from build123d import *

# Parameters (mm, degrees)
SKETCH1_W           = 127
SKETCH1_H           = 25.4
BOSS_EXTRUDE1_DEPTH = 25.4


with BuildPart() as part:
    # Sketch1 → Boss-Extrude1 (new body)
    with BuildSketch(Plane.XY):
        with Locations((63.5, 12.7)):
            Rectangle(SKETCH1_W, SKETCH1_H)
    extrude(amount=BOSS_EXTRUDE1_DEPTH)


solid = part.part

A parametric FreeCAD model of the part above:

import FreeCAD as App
import Part
import Sketcher
from FreeCAD import Vector
Q = App.Units.Quantity


def add_polygon(sketch, points):
    """Adds a closed chain of lines whose ends are joined by coincident constraints."""
    first, n = sketch.GeometryCount, len(points)
    for a, b in zip(points, points[1:] + points[:1]):
        sketch.addGeometry(Part.LineSegment(App.Vector(*a, 0), App.Vector(*b, 0)), False)
    for i in range(n):
        sketch.addConstraint(Sketcher.Constraint("Coincident", first + i, 2, first + (i + 1) % n, 1))

doc = App.newDocument("Part")
body = doc.addObject("PartDesign::Body", "Body")

sketch1 = body.newObject("Sketcher::SketchObject", "Sketch")
sketch1.AttachmentSupport = (doc.getObject("XY_Plane"), [""])
sketch1.MapMode = "FlatFace"
add_polygon(sketch1, [(0, 25), (0, 0), (127, 0), (127, 25)])
sketch1.addConstraint(Sketcher.Constraint("Vertical", 0))
sketch1.addConstraint(Sketcher.Constraint("Horizontal", 1))
sketch1.addConstraint(Sketcher.Constraint("Vertical", 2))
sketch1.addConstraint(Sketcher.Constraint("Horizontal", 3))
sketch1.addConstraint(Sketcher.Constraint("Coincident", 0, 2, -1, 1))
sketch1.addConstraint(Sketcher.Constraint("DistanceX", 1, 1, 1, 2, Q("5 in")))
sketch1.addConstraint(Sketcher.Constraint("DistanceY", 0, 2, 0, 1, Q("1 in")))
pad1 = body.newObject("PartDesign::Pad", "Pad")
pad1.Profile = sketch1
pad1.Length = Q("1 in")

doc.recompute()
